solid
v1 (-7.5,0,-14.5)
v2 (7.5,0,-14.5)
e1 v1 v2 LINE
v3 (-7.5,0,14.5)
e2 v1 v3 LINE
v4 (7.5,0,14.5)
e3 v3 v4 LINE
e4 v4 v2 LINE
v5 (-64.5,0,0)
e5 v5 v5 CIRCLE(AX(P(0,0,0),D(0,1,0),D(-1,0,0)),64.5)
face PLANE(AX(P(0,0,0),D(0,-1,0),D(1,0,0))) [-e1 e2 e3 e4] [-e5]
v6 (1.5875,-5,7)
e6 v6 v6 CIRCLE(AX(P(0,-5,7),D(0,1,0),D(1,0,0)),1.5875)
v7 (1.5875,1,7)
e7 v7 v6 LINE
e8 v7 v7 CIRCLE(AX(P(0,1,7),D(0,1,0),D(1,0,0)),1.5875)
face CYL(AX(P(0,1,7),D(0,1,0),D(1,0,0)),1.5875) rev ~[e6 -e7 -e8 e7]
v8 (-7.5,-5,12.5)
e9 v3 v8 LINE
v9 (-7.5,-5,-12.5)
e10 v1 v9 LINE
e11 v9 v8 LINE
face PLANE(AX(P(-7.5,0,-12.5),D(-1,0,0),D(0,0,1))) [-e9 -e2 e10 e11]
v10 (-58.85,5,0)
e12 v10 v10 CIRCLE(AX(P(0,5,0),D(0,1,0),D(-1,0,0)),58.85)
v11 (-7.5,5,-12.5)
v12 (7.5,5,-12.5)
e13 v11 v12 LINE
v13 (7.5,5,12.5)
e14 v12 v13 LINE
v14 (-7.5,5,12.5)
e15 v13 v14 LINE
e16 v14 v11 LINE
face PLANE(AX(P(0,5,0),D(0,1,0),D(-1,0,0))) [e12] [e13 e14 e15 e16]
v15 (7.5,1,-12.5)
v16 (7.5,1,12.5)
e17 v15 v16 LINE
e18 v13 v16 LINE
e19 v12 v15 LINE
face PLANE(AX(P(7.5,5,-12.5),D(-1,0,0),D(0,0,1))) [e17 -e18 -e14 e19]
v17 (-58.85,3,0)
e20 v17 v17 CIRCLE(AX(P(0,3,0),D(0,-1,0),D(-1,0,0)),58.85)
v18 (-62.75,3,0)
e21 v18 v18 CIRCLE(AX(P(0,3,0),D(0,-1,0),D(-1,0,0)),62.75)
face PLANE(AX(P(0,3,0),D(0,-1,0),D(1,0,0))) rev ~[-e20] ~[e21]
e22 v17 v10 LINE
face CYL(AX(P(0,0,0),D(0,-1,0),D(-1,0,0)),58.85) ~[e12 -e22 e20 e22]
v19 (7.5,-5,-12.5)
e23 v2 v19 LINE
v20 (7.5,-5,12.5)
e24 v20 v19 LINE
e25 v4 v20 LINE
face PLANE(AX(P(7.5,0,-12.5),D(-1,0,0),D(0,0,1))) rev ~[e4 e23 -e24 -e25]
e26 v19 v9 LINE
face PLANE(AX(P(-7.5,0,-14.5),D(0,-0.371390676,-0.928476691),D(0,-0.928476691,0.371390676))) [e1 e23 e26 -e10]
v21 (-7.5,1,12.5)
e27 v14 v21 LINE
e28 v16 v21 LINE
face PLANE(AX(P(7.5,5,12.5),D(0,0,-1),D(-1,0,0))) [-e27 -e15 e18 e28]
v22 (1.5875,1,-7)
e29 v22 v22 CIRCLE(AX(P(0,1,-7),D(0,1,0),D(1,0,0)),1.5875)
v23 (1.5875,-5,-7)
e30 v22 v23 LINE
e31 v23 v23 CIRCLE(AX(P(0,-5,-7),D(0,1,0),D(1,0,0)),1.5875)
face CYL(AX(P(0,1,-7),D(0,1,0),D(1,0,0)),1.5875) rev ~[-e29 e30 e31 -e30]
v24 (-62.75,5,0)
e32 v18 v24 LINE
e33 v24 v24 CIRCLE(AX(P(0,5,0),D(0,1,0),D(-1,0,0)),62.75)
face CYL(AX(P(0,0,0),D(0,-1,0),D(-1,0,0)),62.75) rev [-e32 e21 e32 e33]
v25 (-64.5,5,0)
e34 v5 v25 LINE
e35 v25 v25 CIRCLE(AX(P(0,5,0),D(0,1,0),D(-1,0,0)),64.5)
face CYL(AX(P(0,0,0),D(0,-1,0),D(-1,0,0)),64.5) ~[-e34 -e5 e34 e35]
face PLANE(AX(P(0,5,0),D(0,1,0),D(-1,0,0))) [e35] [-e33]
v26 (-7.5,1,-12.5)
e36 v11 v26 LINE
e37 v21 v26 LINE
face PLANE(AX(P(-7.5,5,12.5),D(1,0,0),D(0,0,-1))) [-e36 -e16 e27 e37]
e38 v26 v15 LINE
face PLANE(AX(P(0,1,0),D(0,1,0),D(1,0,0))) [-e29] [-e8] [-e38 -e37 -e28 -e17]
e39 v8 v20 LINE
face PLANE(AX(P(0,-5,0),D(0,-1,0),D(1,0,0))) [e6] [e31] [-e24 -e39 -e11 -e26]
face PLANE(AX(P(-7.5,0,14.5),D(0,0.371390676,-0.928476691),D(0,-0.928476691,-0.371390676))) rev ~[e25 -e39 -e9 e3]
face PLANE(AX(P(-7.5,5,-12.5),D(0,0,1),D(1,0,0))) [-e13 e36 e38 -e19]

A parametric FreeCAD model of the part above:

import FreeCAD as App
import Part
import Sketcher
from FreeCAD import Vector

doc = App.newDocument("Part")
body = doc.addObject("PartDesign::Body", "Body")
body.AllowCompound = True

sketch1 = doc.addObject("Sketcher::SketchObject", "Sketch")
body.addObject(sketch1)
sketch1.AttachmentSupport = (doc.XZ_Plane, [""])
sketch1.MapMode = "FlatFace"
sketch1.addGeometry([
    Part.Circle(Vector(0, 0, 0), Vector(0, 0, 1), 64),
    Part.Circle(Vector(0, 0, 0), Vector(0, 0, 1), 63),
    Part.Circle(Vector(0, 0, 0), Vector(0, 0, 1), 59),
], False)
sketch1.addConstraint([
    Sketcher.Constraint("Coincident", 0, 3, -1, 1),
    Sketcher.Constraint("Coincident", 1, 3, -1, 1),
    Sketcher.Constraint("Coincident", 2, 3, -1, 1),
    Sketcher.Constraint("Diameter", 0, 129.0),
    Sketcher.Constraint("Diameter", 1, 125.5),
    Sketcher.Constraint("Diameter", 2, 117.7),
])
pad1 = doc.addObject("PartDesign::Pad", "Pad")
body.addObject(pad1)
pad1.Profile = sketch1
pad1.Length = 5
pad1.Reversed = True

sketch2 = doc.addObject("Sketcher::SketchObject", "Sketch001")
body.addObject(sketch2)
sketch2.AttachmentSupport = (doc.XZ_Plane, [""])
sketch2.MapMode = "FlatFace"
sketch2.addGeometry([
    Part.Circle(Vector(0, 0, 0), Vector(0, 0, 1), 63),
    Part.Circle(Vector(0, 0, 0), Vector(0, 0, 1), 59),
], False)
sketch2.addConstraint([
    Sketcher.Constraint("Coincident", 0, 3, -1, 1),
    Sketcher.Constraint("Coincident", 1, 3, -1, 1),
    Sketcher.Constraint("Diameter", 0, 125.5),
    Sketcher.Constraint("Diameter", 1, 117.7),
])
pad2 = doc.addObject("PartDesign::Pad", "Pad001")
body.addObject(pad2)
pad2.Profile = sketch2
pad2.Length = 3
pad2.Reversed = True

sketch3 = doc.addObject("Sketcher::SketchObject", "Sketch002")
body.addObject(sketch3)
sketch3.AttachmentSupport = (doc.XZ_Plane, [""])
sketch3.MapMode = "FlatFace"
sketch3.addGeometry([
    Part.LineSegment(Vector(8, 12, 0), Vector(-8, 12, 0)),
    Part.LineSegment(Vector(-8, 12, 0), Vector(-8, -12, 0)),
    Part.LineSegment(Vector(-8, -12, 0), Vector(8, -12, 0)),
    Part.LineSegment(Vector(8, -12, 0), Vector(8, 12, 0)),
], False)
sketch3.addConstraint([
    Sketcher.Constraint("Coincident", 0, 2, 1, 1),
    Sketcher.Constraint("Coincident", 1, 2, 2, 1),
    Sketcher.Constraint("Coincident", 2, 2, 3, 1),
    Sketcher.Constraint("Coincident", 3, 2, 0, 1),
    Sketcher.Constraint("Horizontal", 0),
    Sketcher.Constraint("Vertical", 1),
    Sketcher.Constraint("Horizontal", 2),
    Sketcher.Constraint("Vertical", 3),
    Sketcher.Constraint("Symmetric", 0, 2, 2, 2, -1, 1),
    Sketcher.Constraint("DistanceX", 0, 2, 0, 1, 15.0),
    Sketcher.Constraint("DistanceY", 1, 2, 1, 1, 25.0),
])
pad3 = doc.addObject("PartDesign::Pad", "Pad002")
body.addObject(pad3)
pad3.Profile = sketch3
pad3.Length = 5

sketch4 = doc.addObject("Sketcher::SketchObject", "Sketch003")
body.addObject(sketch4)
sketch4.AttachmentSupport = (doc.YZ_Plane, [""])
sketch4.MapMode = "FlatFace"
sketch4.AttachmentOffset = App.Placement(Vector(0, 0, -7.5), App.Rotation())
sketch4.addGeometry([
    Part.LineSegment(Vector(0, -14.5, 0), Vector(-5, -12.5, 0)),
    Part.LineSegment(Vector(-5, -12.5, 0), Vector(0, -12.5, 0)),
    Part.LineSegment(Vector(0, -12.5, 0), Vector(0, -14.5, 0)),
    Part.LineSegment(Vector(0, 12.5, 0), Vector(-5, 12.5, 0)),
    Part.LineSegment(Vector(-5, 12.5, 0), Vector(0, 14.5, 0)),
    Part.LineSegment(Vector(0, 14.5, 0), Vector(0, 12.5, 0)),
], False)
sketch4.addConstraint([
    Sketcher.Constraint("Coincident", 0, 2, 1, 1),
    Sketcher.Constraint("Coincident", 1, 2, 2, 1),
    Sketcher.Constraint("Coincident", 2, 2, 0, 1),
    Sketcher.Constraint("Coincident", 3, 2, 4, 1),
    Sketcher.Constraint("Coincident", 4, 2, 5, 1),
    Sketcher.Constraint("Coincident", 5, 2, 3, 1),
    Sketcher.Constraint("Horizontal", 1),
    Sketcher.Constraint("Vertical", 2),
    Sketcher.Constraint("Horizontal", 3),
    Sketcher.Constraint("Vertical", 5),
    Sketcher.Constraint("Symmetric", 2, 2, 4, 2, -1, 1),
    Sketcher.Constraint("Symmetric", 0, 2, 3, 2, -1),
    Sketcher.Constraint("PointOnObject", 1, 2, -2),
    Sketcher.Constraint("DistanceY", 2, 2, 2, 1, 2.0),
    Sketcher.Constraint("DistanceX", 1, 1, 1, 2, 5.0),
    Sketcher.Constraint("DistanceY", 0, 2, 3, 2, 25.0),
])
pad4 = doc.addObject("PartDesign::Pad", "Pad003")
body.addObject(pad4)
pad4.Profile = sketch4
pad4.Length = 15

sketch5 = doc.addObject("Sketcher::SketchObject", "Sketch004")
body.addObject(sketch5)
sketch5.AttachmentSupport = (doc.XZ_Plane, [""])
sketch5.MapMode = "FlatFace"
sketch5.AttachmentOffset = App.Placement(Vector(0, 0, -5), App.Rotation())
sketch5.addGeometry([
    Part.LineSegment(Vector(8, -12, 0), Vector(-8, -12, 0)),
    Part.LineSegment(Vector(-8, -12, 0), Vector(-8, 12, 0)),
    Part.LineSegment(Vector(-8, 12, 0), Vector(8, 12, 0)),
    Part.LineSegment(Vector(8, 12, 0), Vector(8, -12, 0)),
], False)
sketch5.addConstraint([
    Sketcher.Constraint("Coincident", 0, 2, 1, 1),
    Sketcher.Constraint("Coincident", 1, 2, 2, 1),
    Sketcher.Constraint("Coincident", 2, 2, 3, 1),
    Sketcher.Constraint("Coincident", 3, 2, 0, 1),
    Sketcher.Constraint("Horizontal", 0),
    Sketcher.Constraint("Vertical", 1),
    Sketcher.Constraint("Horizontal", 2),
    Sketcher.Constraint("Vertical", 3),
    Sketcher.Constraint("Symmetric", 0, 2, 2, 2, -1, 1),
    Sketcher.Constraint("DistanceX", 0, 2, 0, 1, 15.0),
    Sketcher.Constraint("DistanceY", 1, 1, 1, 2, 25.0),
])
pocket1 = doc.addObject("PartDesign::Pocket", "Pocket")
body.addObject(pocket1)
pocket1.Profile = sketch5
pocket1.Length = 4
pocket1.Reversed = True

sketch6 = doc.addObject("Sketcher::SketchObject", "Sketch005")
body.addObject(sketch6)
sketch6.AttachmentSupport = (doc.XZ_Plane, [""])
sketch6.MapMode = "FlatFace"
sketch6.AttachmentOffset = App.Placement(Vector(0, 0, -1), App.Rotation())
sketch6.addGeometry([
    Part.Circle(Vector(0, 7, 0), Vector(0, 0, 1), 1.6),
    Part.Circle(Vector(0, -7, 0), Vector(0, 0, 1), 1.6),
], False)
sketch6.addConstraint([
    Sketcher.Constraint("Equal", 0, 1),
    Sketcher.Constraint("Symmetric", 0, 3, 1, 3, -1, 1),
    Sketcher.Constraint("PointOnObject", 0, 3, -2),
    Sketcher.Constraint("Diameter", 0, 3.175),
    Sketcher.Constraint("DistanceY", -1, 1, 0, 3, 7.0),
])
pocket2 = doc.addObject("PartDesign::Pocket", "Pocket001")
body.addObject(pocket2)
pocket2.Profile = sketch6
pocket2.Length = 6
pocket2.Reversed = True

doc.recompute()
